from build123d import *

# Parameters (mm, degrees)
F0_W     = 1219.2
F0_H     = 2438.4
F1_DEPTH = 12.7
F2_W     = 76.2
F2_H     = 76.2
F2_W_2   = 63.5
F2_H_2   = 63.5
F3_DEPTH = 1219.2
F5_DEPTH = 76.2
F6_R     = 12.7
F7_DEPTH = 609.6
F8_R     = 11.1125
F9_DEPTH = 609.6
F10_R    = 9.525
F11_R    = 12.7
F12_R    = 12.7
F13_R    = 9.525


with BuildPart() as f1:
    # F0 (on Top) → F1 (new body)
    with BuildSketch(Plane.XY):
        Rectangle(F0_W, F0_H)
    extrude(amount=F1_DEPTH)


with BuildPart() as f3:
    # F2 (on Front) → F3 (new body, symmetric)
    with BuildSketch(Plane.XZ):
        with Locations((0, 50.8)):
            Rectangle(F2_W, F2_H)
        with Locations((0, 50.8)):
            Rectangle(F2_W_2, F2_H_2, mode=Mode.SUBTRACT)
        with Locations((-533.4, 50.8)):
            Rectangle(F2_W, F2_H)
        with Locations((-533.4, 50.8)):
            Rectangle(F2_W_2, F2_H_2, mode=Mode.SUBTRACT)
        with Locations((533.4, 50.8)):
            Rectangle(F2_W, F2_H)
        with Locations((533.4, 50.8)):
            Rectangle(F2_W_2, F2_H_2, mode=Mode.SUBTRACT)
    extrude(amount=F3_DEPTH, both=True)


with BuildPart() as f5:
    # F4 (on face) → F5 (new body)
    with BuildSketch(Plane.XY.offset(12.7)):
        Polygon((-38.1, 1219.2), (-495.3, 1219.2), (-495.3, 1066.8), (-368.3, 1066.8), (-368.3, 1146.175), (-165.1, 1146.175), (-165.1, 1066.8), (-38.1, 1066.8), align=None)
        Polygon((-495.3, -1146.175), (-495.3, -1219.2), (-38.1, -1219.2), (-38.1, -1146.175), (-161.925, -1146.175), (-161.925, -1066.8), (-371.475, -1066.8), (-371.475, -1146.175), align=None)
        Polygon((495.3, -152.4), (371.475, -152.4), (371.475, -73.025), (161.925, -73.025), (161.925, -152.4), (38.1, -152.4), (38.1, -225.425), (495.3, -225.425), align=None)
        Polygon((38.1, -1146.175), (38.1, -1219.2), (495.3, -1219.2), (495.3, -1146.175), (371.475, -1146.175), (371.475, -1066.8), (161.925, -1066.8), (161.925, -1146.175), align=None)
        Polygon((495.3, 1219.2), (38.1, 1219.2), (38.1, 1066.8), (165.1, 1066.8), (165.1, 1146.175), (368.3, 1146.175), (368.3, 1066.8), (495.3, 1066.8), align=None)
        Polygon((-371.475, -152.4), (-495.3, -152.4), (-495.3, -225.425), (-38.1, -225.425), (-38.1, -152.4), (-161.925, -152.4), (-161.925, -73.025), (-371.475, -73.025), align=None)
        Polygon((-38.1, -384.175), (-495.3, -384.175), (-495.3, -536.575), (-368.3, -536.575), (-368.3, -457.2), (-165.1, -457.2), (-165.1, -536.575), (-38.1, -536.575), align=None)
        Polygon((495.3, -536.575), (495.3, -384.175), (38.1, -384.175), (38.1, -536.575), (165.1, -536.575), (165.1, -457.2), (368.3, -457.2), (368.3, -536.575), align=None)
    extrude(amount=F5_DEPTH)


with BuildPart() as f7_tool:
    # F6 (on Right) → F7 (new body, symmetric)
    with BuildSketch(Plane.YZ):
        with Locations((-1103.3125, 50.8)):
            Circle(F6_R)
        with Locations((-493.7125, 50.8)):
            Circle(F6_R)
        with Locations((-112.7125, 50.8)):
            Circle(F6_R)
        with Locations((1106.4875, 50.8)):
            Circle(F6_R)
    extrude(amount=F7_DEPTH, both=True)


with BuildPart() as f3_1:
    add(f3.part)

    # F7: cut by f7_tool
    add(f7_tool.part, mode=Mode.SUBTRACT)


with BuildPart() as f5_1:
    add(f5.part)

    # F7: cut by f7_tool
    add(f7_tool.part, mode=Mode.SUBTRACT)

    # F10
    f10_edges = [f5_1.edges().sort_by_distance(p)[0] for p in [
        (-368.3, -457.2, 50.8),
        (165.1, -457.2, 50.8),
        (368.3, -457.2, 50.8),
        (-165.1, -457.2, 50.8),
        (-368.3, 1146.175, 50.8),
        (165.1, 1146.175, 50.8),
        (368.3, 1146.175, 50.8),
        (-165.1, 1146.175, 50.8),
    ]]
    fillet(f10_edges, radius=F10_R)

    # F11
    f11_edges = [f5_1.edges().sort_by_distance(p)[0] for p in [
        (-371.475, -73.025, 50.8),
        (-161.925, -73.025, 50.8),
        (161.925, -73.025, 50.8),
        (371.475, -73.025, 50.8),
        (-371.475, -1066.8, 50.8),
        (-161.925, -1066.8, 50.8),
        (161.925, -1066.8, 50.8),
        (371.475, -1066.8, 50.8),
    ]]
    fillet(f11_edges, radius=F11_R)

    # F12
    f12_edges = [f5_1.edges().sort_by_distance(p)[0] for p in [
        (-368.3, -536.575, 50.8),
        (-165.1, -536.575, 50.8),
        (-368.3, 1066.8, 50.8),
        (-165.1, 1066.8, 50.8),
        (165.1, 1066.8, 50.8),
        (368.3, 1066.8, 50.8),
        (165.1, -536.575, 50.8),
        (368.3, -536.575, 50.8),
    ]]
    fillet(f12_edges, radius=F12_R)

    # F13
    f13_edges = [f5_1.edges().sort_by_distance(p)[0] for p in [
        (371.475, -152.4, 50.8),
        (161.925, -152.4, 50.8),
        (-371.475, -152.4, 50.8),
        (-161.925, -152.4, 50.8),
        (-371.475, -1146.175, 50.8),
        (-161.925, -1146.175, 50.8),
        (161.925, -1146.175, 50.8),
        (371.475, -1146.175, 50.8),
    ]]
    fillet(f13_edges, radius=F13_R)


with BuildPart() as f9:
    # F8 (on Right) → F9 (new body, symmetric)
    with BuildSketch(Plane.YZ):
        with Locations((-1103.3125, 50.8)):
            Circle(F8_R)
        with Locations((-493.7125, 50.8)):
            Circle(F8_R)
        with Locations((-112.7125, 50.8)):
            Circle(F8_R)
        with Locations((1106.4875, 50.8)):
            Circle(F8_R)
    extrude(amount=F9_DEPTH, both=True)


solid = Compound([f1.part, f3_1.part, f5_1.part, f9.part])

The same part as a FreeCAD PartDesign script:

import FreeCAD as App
import Part
import Sketcher

V = App.Vector
Q = App.Units.Quantity


def edges_at(feature, points):
    """Names of the edges that pass closest to the given points."""
    edges = feature.Shape.Edges
    near = lambda p: min(range(len(edges)), key=lambda i: edges[i].distToShape(Part.Vertex(*p))[0])
    return sorted({f"Edge{near(p) + 1}" for p in points})

doc = App.newDocument("Part")
body = doc.addObject("PartDesign::Body", "Body")

# Sketch on XY plane
sketch1 = body.newObject("Sketcher::SketchObject", "Sketch")
sketch1.AttachmentSupport = (doc.getObject("XY_Plane"), [""])
sketch1.MapMode = "FlatFace"
sketch1.addGeometry([
    Part.LineSegment(V(-609.6, 1219.2, 0), V(-609.6, -1219.2, 0)),
    Part.LineSegment(V(-609.6, -1219.2, 0), V(609.6, -1219.2, 0)),
    Part.LineSegment(V(609.6, -1219.2, 0), V(609.6, 1219.2, 0)),
    Part.LineSegment(V(609.6, 1219.2, 0), V(-609.6, 1219.2, 0)),
], False)
sketch1.addConstraint([
    Sketcher.Constraint("Coincident", 0, 2, 1, 1),
    Sketcher.Constraint("Coincident", 1, 2, 2, 1),
    Sketcher.Constraint("Coincident", 2, 2, 3, 1),
    Sketcher.Constraint("Coincident", 3, 2, 0, 1),
    Sketcher.Constraint("Vertical", 0),
    Sketcher.Constraint("Horizontal", 1),
    Sketcher.Constraint("Vertical", 2),
    Sketcher.Constraint("Horizontal", 3),
    Sketcher.Constraint("Symmetric", 0, 2, 2, 2, -1, 1),
    Sketcher.Constraint("DistanceX", 1, 1, 1, 2, Q("48 in")),
    Sketcher.Constraint("DistanceY", 0, 2, 0, 1, Q("96 in")),
])
pad1 = body.newObject("PartDesign::Pad", "Pad")
pad1.Profile = sketch1
pad1.Length = Q("0.5 in")
body2 = doc.addObject("PartDesign::Body", "Body001")
body2.AllowCompound = True

# Sketch on XZ plane
sketch2 = body2.newObject("Sketcher::SketchObject", "Sketch001")
sketch2.AttachmentSupport = (doc.getObject("XZ_Plane001"), [""])
sketch2.MapMode = "FlatFace"
sketch2.addGeometry([
    Part.LineSegment(V(-38.1, 88.9, 0), V(-38.1, 12.7, 0)),  # 0
    Part.LineSegment(V(-38.1, 12.7, 0), V(38.1, 12.7, 0)),  # 1
    Part.LineSegment(V(38.1, 12.7, 0), V(38.1, 88.9, 0)),  # 2
    Part.LineSegment(V(38.1, 88.9, 0), V(-38.1, 88.9, 0)),  # 3
    Part.LineSegment(V(31.75, 19.05, 0), V(-31.75, 19.05, 0)),  # 4
    Part.LineSegment(V(-31.75, 19.05, 0), V(-31.75, 82.55, 0)),  # 5
    Part.LineSegment(V(-31.75, 82.55, 0), V(31.75, 82.55, 0)),  # 6
    Part.LineSegment(V(31.75, 82.55, 0), V(31.75, 19.05, 0)),  # 7
    Part.LineSegment(V(-571.5, 88.9, 0), V(-571.5, 12.7, 0)),  # 8
    Part.LineSegment(V(-571.5, 12.7, 0), V(-495.3, 12.7, 0)),  # 9
    Part.LineSegment(V(-495.3, 12.7, 0), V(-495.3, 88.9, 0)),  # 10
    Part.LineSegment(V(-495.3, 88.9, 0), V(-571.5, 88.9, 0)),  # 11
    Part.LineSegment(V(-501.65, 19.05, 0), V(-565.15, 19.05, 0)),  # 12
    Part.LineSegment(V(-565.15, 19.05, 0), V(-565.15, 82.55, 0)),  # 13
    Part.LineSegment(V(-565.15, 82.55, 0), V(-501.65, 82.55, 0)),  # 14
    Part.LineSegment(V(-501.65, 82.55, 0), V(-501.65, 19.05, 0)),  # 15
    Part.LineSegment(V(495.3, 88.9, 0), V(495.3, 12.7, 0)),  # 16
    Part.LineSegment(V(495.3, 12.7, 0), V(571.5, 12.7, 0)),  # 17
    Part.LineSegment(V(571.5, 12.7, 0), V(571.5, 88.9, 0)),  # 18
    Part.LineSegment(V(571.5, 88.9, 0), V(495.3, 88.9, 0)),  # 19
    Part.LineSegment(V(565.15, 19.05, 0), V(501.65, 19.05, 0)),  # 20
    Part.LineSegment(V(501.65, 19.05, 0), V(501.65, 82.55, 0)),  # 21
    Part.LineSegment(V(501.65, 82.55, 0), V(565.15, 82.55, 0)),  # 22
    Part.LineSegment(V(565.15, 82.55, 0), V(565.15, 19.05, 0)),  # 23
], False)
sketch2.addConstraint([
    Sketcher.Constraint("Coincident", 0, 2, 1, 1),
    Sketcher.Constraint("Coincident", 1, 2, 2, 1),
    Sketcher.Constraint("Coincident", 2, 2, 3, 1),
    Sketcher.Constraint("Coincident", 3, 2, 0, 1),
    Sketcher.Constraint("Coincident", 4, 2, 5, 1),
    Sketcher.Constraint("Coincident", 5, 2, 6, 1),
    Sketcher.Constraint("Coincident", 6, 2, 7, 1),
    Sketcher.Constraint("Coincident", 7, 2, 4, 1),
    Sketcher.Constraint("Coincident", 8, 2, 9, 1),
    Sketcher.Constraint("Coincident", 9, 2, 10, 1),
    Sketcher.Constraint("Coincident", 10, 2, 11, 1),
    Sketcher.Constraint("Coincident", 11, 2, 8, 1),
    Sketcher.Constraint("Coincident", 12, 2, 13, 1),
    Sketcher.Constraint("Coincident", 13, 2, 14, 1),
    Sketcher.Constraint("Coincident", 14, 2, 15, 1),
    Sketcher.Constraint("Coincident", 15, 2, 12, 1),
    Sketcher.Constraint("Coincident", 16, 2, 17, 1),
    Sketcher.Constraint("Coincident", 17, 2, 18, 1),
    Sketcher.Constraint("Coincident", 18, 2, 19, 1),
    Sketcher.Constraint("Coincident", 19, 2, 16, 1),
    Sketcher.Constraint("Coincident", 20, 2, 21, 1),
    Sketcher.Constraint("Coincident", 21, 2, 22, 1),
    Sketcher.Constraint("Coincident", 22, 2, 23, 1),
    Sketcher.Constraint("Coincident", 23, 2, 20, 1),
    Sketcher.Constraint("Vertical", 0),
    Sketcher.Constraint("Horizontal", 1),
    Sketcher.Constraint("Vertical", 2),
    Sketcher.Constraint("Horizontal", 3),
    Sketcher.Constraint("Horizontal", 4),
    Sketcher.Constraint("Vertical", 5),
    Sketcher.Constraint("Horizontal", 6),
    Sketcher.Constraint("Vertical", 7),
    Sketcher.Constraint("Vertical", 8),
    Sketcher.Constraint("Horizontal", 9),
    Sketcher.Constraint("Vertical", 10),
    Sketcher.Constraint("Horizontal", 11),
    Sketcher.Constraint("Horizontal", 12),
    Sketcher.Constraint("Vertical", 13),
    Sketcher.Constraint("Horizontal", 14),
    Sketcher.Constraint("Vertical", 15),
    Sketcher.Constraint("Vertical", 16),
    Sketcher.Constraint("Horizontal", 17),
    Sketcher.Constraint("Vertical", 18),
    Sketcher.Constraint("Horizontal", 19),
    Sketcher.Constraint("Horizontal", 20),
    Sketcher.Constraint("Vertical", 21),
    Sketcher.Constraint("Horizontal", 22),
    Sketcher.Constraint("Vertical", 23),
    Sketcher.Constraint("Symmetric", 9, 2, 16, 2, -2),
    Sketcher.Constraint("Symmetric", 11, 2, 18, 2, -2),
    Sketcher.Constraint("Symmetric", 15, 2, 20, 2, -2),
    Sketcher.Constraint("Symmetric", 13, 2, 22, 2, -2),
    Sketcher.Constraint("Horizontal", 1, 2, 8, 2),
    Sketcher.Constraint("Horizontal", 3, 2, 10, 2),
    Sketcher.Constraint("Horizontal", 7, 2, 12, 2),
    Sketcher.Constraint("Horizontal", 6, 2, 13, 2),
    Sketcher.Constraint("Equal", 3, 9),
    Sketcher.Constraint("Equal", 6, 12),
    Sketcher.Constraint("Equal", 19, 0),
    Sketcher.Constraint("Equal", 22, 5),
    Sketcher.Constraint("DistanceX", 1, 1, 1, 2, Q("3 in")),
    Sketcher.Constraint("DistanceX", 4, 2, 4, 1, Q("2.5 in")),
    Sketcher.Constraint("DistanceX", 8, 2, 0, 2, Q("21 in")),
    Sketcher.Constraint("DistanceX", 1, 2, 16, 2, Q("18 in")),
    Sketcher.Constraint("DistanceY", -1, 1, 0, 2, Q("0.5 in")),
    Sketcher.Constraint("DistanceX", 4, 2, -1, 1, Q("1.25 in")),
    Sketcher.Constraint("DistanceY", -1, 1, 4, 2, Q("0.75 in")),
    Sketcher.Constraint("DistanceX", 12, 2, -1, 1, Q("22.25 in")),
])
pad2 = body2.newObject("PartDesign::Pad", "Pad001")
pad2.Profile = sketch2
pad2.Length = Q("96 in")
pad2.Midplane = True
body3 = doc.addObject("PartDesign::Body", "Body002")
body3.AllowCompound = True

# Sketch on XY plane
sketch3 = body3.newObject("Sketcher::SketchObject", "Sketch002")
sketch3.AttachmentSupport = (doc.getObject("XY_Plane002"), [""])
sketch3.MapMode = "FlatFace"
sketch3.AttachmentOffset = App.Placement(V(0, 0, 0.5 * 25.4), App.Rotation())
sketch3.addGeometry([
    Part.LineSegment(V(-38.1, 1219.2, 0), V(-495.3, 1219.2, 0)),  # 0
    Part.LineSegment(V(-495.3, 1219.2, 0), V(-495.3, 1066.8, 0)),  # 1
    Part.LineSegment(V(-495.3, 1066.8, 0), V(-368.3, 1066.8, 0)),  # 2
    Part.LineSegment(V(-368.3, 1066.8, 0), V(-368.3, 1146.175, 0)),  # 3
    Part.LineSegment(V(-368.3, 1146.175, 0), V(-165.1, 1146.175, 0)),  # 4
    Part.LineSegment(V(-165.1, 1146.175, 0), V(-165.1, 1066.8, 0)),  # 5
    Part.LineSegment(V(-165.1, 1066.8, 0), V(-38.1, 1066.8, 0)),  # 6
    Part.LineSegment(V(-38.1, 1066.8, 0), V(-38.1, 1219.2, 0)),  # 7
    Part.LineSegment(V(-495.3, -1146.175, 0), V(-495.3, -1219.2, 0)),  # 8
    Part.LineSegment(V(-495.3, -1219.2, 0), V(-38.1, -1219.2, 0)),  # 9
    Part.LineSegment(V(-38.1, -1219.2, 0), V(-38.1, -1146.175, 0)),  # 10
    Part.LineSegment(V(-38.1, -1146.175, 0), V(-161.925, -1146.175, 0)),  # 11
    Part.LineSegment(V(-161.925, -1146.175, 0), V(-161.925, -1066.8, 0)),  # 12
    Part.LineSegment(V(-161.925, -1066.8, 0), V(-371.475, -1066.8, 0)),  # 13
    Part.LineSegment(V(-371.475, -1066.8, 0), V(-371.475, -1146.175, 0)),  # 14
    Part.LineSegment(V(-371.475, -1146.175, 0), V(-495.3, -1146.175, 0)),  # 15
    Part.LineSegment(V(495.3, -152.4, 0), V(371.475, -152.4, 0)),  # 16
    Part.LineSegment(V(371.475, -152.4, 0), V(371.475, -73.025, 0)),  # 17
    Part.LineSegment(V(371.475, -73.025, 0), V(161.925, -73.025, 0)),  # 18
    Part.LineSegment(V(161.925, -73.025, 0), V(161.925, -152.4, 0)),  # 19
    Part.LineSegment(V(161.925, -152.4, 0), V(38.1, -152.4, 0)),  # 20
    Part.LineSegment(V(38.1, -152.4, 0), V(38.1, -225.425, 0)),  # 21
    Part.LineSegment(V(38.1, -225.425, 0), V(495.3, -225.425, 0)),  # 22
    Part.LineSegment(V(495.3, -225.425, 0), V(495.3, -152.4, 0)),  # 23
    Part.LineSegment(V(38.1, -1146.175, 0), V(38.1, -1219.2, 0)),  # 24
    Part.LineSegment(V(38.1, -1219.2, 0), V(495.3, -1219.2, 0)),  # 25
    Part.LineSegment(V(495.3, -1219.2, 0), V(495.3, -1146.175, 0)),  # 26
    Part.LineSegment(V(495.3, -1146.175, 0), V(371.475, -1146.175, 0)),  # 27
    Part.LineSegment(V(371.475, -1146.175, 0), V(371.475, -1066.8, 0)),  # 28
    Part.LineSegment(V(371.475, -1066.8, 0), V(161.925, -1066.8, 0)),  # 29
    Part.LineSegment(V(161.925, -1066.8, 0), V(161.925, -1146.175, 0)),  # 30
    Part.LineSegment(V(161.925, -1146.175, 0), V(38.1, -1146.175, 0)),  # 31
    Part.LineSegment(V(495.3, 1219.2, 0), V(38.1, 1219.2, 0)),  # 32
    Part.LineSegment(V(38.1, 1219.2, 0), V(38.1, 1066.8, 0)),  # 33
    Part.LineSegment(V(38.1, 1066.8, 0), V(165.1, 1066.8, 0)),  # 34
    Part.LineSegment(V(165.1, 1066.8, 0), V(165.1, 1146.175, 0)),  # 35
    Part.LineSegment(V(165.1, 1146.175, 0), V(368.3, 1146.175, 0)),  # 36
    Part.LineSegment(V(368.3, 1146.175, 0), V(368.3, 1066.8, 0)),  # 37
    Part.LineSegment(V(368.3, 1066.8, 0), V(495.3, 1066.8, 0)),  # 38
    Part.LineSegment(V(495.3, 1066.8, 0), V(495.3, 1219.2, 0)),  # 39
    Part.LineSegment(V(-371.475, -152.4, 0), V(-495.3, -152.4, 0)),  # 40
    Part.LineSegment(V(-495.3, -152.4, 0), V(-495.3, -225.425, 0)),  # 41
    Part.LineSegment(V(-495.3, -225.425, 0), V(-38.1, -225.425, 0)),  # 42
    Part.LineSegment(V(-38.1, -225.425, 0), V(-38.1, -152.4, 0)),  # 43
    Part.LineSegment(V(-38.1, -152.4, 0), V(-161.925, -152.4, 0)),  # 44
    Part.LineSegment(V(-161.925, -152.4, 0), V(-161.925, -73.025, 0)),  # 45
    Part.LineSegment(V(-161.925, -73.025, 0), V(-371.475, -73.025, 0)),  # 46
    Part.LineSegment(V(-371.475, -73.025, 0), V(-371.475, -152.4, 0)),  # 47
    Part.LineSegment(V(-38.1, -384.175, 0), V(-495.3, -384.175, 0)),  # 48
    Part.LineSegment(V(-495.3, -384.175, 0), V(-495.3, -536.575, 0)),  # 49
    Part.LineSegment(V(-495.3, -536.575, 0), V(-368.3, -536.575, 0)),  # 50
    Part.LineSegment(V(-368.3, -536.575, 0), V(-368.3, -457.2, 0)),  # 51
    Part.LineSegment(V(-368.3, -457.2, 0), V(-165.1, -457.2, 0)),  # 52
    Part.LineSegment(V(-165.1, -457.2, 0), V(-165.1, -536.575, 0)),  # 53
    Part.LineSegment(V(-165.1, -536.575, 0), V(-38.1, -536.575, 0)),  # 54
    Part.LineSegment(V(-38.1, -536.575, 0), V(-38.1, -384.175, 0)),  # 55
    Part.LineSegment(V(495.3, -536.575, 0), V(495.3, -384.175, 0)),  # 56
    Part.LineSegment(V(495.3, -384.175, 0), V(38.1, -384.175, 0)),  # 57
    Part.LineSegment(V(38.1, -384.175, 0), V(38.1, -536.575, 0)),  # 58
    Part.LineSegment(V(38.1, -536.575, 0), V(165.1, -536.575, 0)),  # 59
    Part.LineSegment(V(165.1, -536.575, 0), V(165.1, -457.2, 0)),  # 60
    Part.LineSegment(V(165.1, -457.2, 0), V(368.3, -457.2, 0)),  # 61
    Part.LineSegment(V(368.3, -457.2, 0), V(368.3, -536.575, 0)),  # 62
    Part.LineSegment(V(368.3, -536.575, 0), V(495.3, -536.575, 0)),  # 63
], False)
sketch3.addConstraint([
    Sketcher.Constraint("Coincident", 0, 2, 1, 1),
    Sketcher.Constraint("Coincident", 1, 2, 2, 1),
    Sketcher.Constraint("Coincident", 2, 2, 3, 1),
    Sketcher.Constraint("Coincident", 3, 2, 4, 1),
    Sketcher.Constraint("Coincident", 4, 2, 5, 1),
    Sketcher.Constraint("Coincident", 5, 2, 6, 1),
    Sketcher.Constraint("Coincident", 6, 2, 7, 1),
    Sketcher.Constraint("Coincident", 7, 2, 0, 1),
    Sketcher.Constraint("Coincident", 8, 2, 9, 1),
    Sketcher.Constraint("Coincident", 9, 2, 10, 1),
    Sketcher.Constraint("Coincident", 10, 2, 11, 1),
    Sketcher.Constraint("Coincident", 11, 2, 12, 1),
    Sketcher.Constraint("Coincident", 12, 2, 13, 1),
    Sketcher.Constraint("Coincident", 13, 2, 14, 1),
    Sketcher.Constraint("Coincident", 14, 2, 15, 1),
    Sketcher.Constraint("Coincident", 15, 2, 8, 1),
    Sketcher.Constraint("Coincident", 16, 2, 17, 1),
    Sketcher.Constraint("Coincident", 17, 2, 18, 1),
    Sketcher.Constraint("Coincident", 18, 2, 19, 1),
    Sketcher.Constraint("Coincident", 19, 2, 20, 1),
    Sketcher.Constraint("Coincident", 20, 2, 21, 1),
    Sketcher.Constraint("Coincident", 21, 2, 22, 1),
    Sketcher.Constraint("Coincident", 22, 2, 23, 1),
    Sketcher.Constraint("Coincident", 23, 2, 16, 1),
    Sketcher.Constraint("Coincident", 24, 2, 25, 1),
    Sketcher.Constraint("Coincident", 25, 2, 26, 1),
    Sketcher.Constraint("Coincident", 26, 2, 27, 1),
    Sketcher.Constraint("Coincident", 27, 2, 28, 1),
    Sketcher.Constraint("Coincident", 28, 2, 29, 1),
    Sketcher.Constraint("Coincident", 29, 2, 30, 1),
    Sketcher.Constraint("Coincident", 30, 2, 31, 1),
    Sketcher.Constraint("Coincident", 31, 2, 24, 1),
    Sketcher.Constraint("Coincident", 32, 2, 33, 1),
    Sketcher.Constraint("Coincident", 33, 2, 34, 1),
    Sketcher.Constraint("Coincident", 34, 2, 35, 1),
    Sketcher.Constraint("Coincident", 35, 2, 36, 1),
    Sketcher.Constraint("Coincident", 36, 2, 37, 1),
    Sketcher.Constraint("Coincident", 37, 2, 38, 1),
    Sketcher.Constraint("Coincident", 38, 2, 39, 1),
    Sketcher.Constraint("Coincident", 39, 2, 32, 1),
    Sketcher.Constraint("Coincident", 40, 2, 41, 1),
    Sketcher.Constraint("Coincident", 41, 2, 42, 1),
    Sketcher.Constraint("Coincident", 42, 2, 43, 1),
    Sketcher.Constraint("Coincident", 43, 2, 44, 1),
    Sketcher.Constraint("Coincident", 44, 2, 45, 1),
    Sketcher.Constraint("Coincident", 45, 2, 46, 1),
    Sketcher.Constraint("Coincident", 46, 2, 47, 1),
    Sketcher.Constraint("Coincident", 47, 2, 40, 1),
    Sketcher.Constraint("Coincident", 48, 2, 49, 1),
    Sketcher.Constraint("Coincident", 49, 2, 50, 1),
    Sketcher.Constraint("Coincident", 50, 2, 51, 1),
    Sketcher.Constraint("Coincident", 51, 2, 52, 1),
    Sketcher.Constraint("Coincident", 52, 2, 53, 1),
    Sketcher.Constraint("Coincident", 53, 2, 54, 1),
    Sketcher.Constraint("Coincident", 54, 2, 55, 1),
    Sketcher.Constraint("Coincident", 55, 2, 48, 1),
    Sketcher.Constraint("Coincident", 56, 2, 57, 1),
    Sketcher.Constraint("Coincident", 57, 2, 58, 1),
    Sketcher.Constraint("Coincident", 58, 2, 59, 1),
    Sketcher.Constraint("Coincident", 59, 2, 60, 1),
    Sketcher.Constraint("Coincident", 60, 2, 61, 1),
    Sketcher.Constraint("Coincident", 61, 2, 62, 1),
    Sketcher.Constraint("Coincident", 62, 2, 63, 1),
    Sketcher.Constraint("Coincident", 63, 2, 56, 1),
    Sketcher.Constraint("Horizontal", 0),
    Sketcher.Constraint("Vertical", 1),
    Sketcher.Constraint("Horizontal", 2),
    Sketcher.Constraint("Vertical", 3),
    Sketcher.Constraint("Horizontal", 4),
    Sketcher.Constraint("Vertical", 5),
    Sketcher.Constraint("Horizontal", 6),
    Sketcher.Constraint("Vertical", 7),
    Sketcher.Constraint("Vertical", 8),
    Sketcher.Constraint("Horizontal", 9),
    Sketcher.Constraint("Vertical", 10),
    Sketcher.Constraint("Horizontal", 11),
    Sketcher.Constraint("Vertical", 12),
    Sketcher.Constraint("Horizontal", 13),
    Sketcher.Constraint("Vertical", 14),
    Sketcher.Constraint("Horizontal", 15),
    Sketcher.Constraint("Horizontal", 16),
    Sketcher.Constraint("Vertical", 17),
    Sketcher.Constraint("Horizontal", 18),
    Sketcher.Constraint("Vertical", 19),
    Sketcher.Constraint("Horizontal", 20),
    Sketcher.Constraint("Vertical", 21),
    Sketcher.Constraint("Horizontal", 22),
    Sketcher.Constraint("Vertical", 23),
    Sketcher.Constraint("Vertical", 24),
    Sketcher.Constraint("Horizontal", 25),
    Sketcher.Constraint("Vertical", 26),
    Sketcher.Constraint("Horizontal", 27),
    Sketcher.Constraint("Vertical", 28),
    Sketcher.Constraint("Horizontal", 29),
    Sketcher.Constraint("Vertical", 30),
    Sketcher.Constraint("Horizontal", 31),
    Sketcher.Constraint("Horizontal", 32),
    Sketcher.Constraint("Vertical", 33),
    Sketcher.Constraint("Horizontal", 34),
    Sketcher.Constraint("Vertical", 35),
    Sketcher.Constraint("Horizontal", 36),
    Sketcher.Constraint("Vertical", 37),
    Sketcher.Constraint("Horizontal", 38),
    Sketcher.Constraint("Vertical", 39),
    Sketcher.Constraint("Horizontal", 40),
    Sketcher.Constraint("Vertical", 41),
    Sketcher.Constraint("Horizontal", 42),
    Sketcher.Constraint("Vertical", 43),
    Sketcher.Constraint("Horizontal", 44),
    Sketcher.Constraint("Vertical", 45),
    Sketcher.Constraint("Horizontal", 46),
    Sketcher.Constraint("Vertical", 47),
    Sketcher.Constraint("Horizontal", 48),
    Sketcher.Constraint("Vertical", 49),
    Sketcher.Constraint("Horizontal", 50),
    Sketcher.Constraint("Vertical", 51),
    Sketcher.Constraint("Horizontal", 52),
    Sketcher.Constraint("Vertical", 53),
    Sketcher.Constraint("Horizontal", 54),
    Sketcher.Constraint("Vertical", 55),
    Sketcher.Constraint("Vertical", 56),
    Sketcher.Constraint("Horizontal", 57),
    Sketcher.Constraint("Vertical", 58),
    Sketcher.Constraint("Horizontal", 59),
    Sketcher.Constraint("Vertical", 60),
    Sketcher.Constraint("Horizontal", 61),
    Sketcher.Constraint("Vertical", 62),
    Sketcher.Constraint("Horizontal", 63),
    Sketcher.Constraint("Symmetric", 7, 2, 24, 2, -1, 1),
    Sketcher.Constraint("Symmetric", 9, 2, 32, 2, -1, 1),
    Sketcher.Constraint("Symmetric", 9, 2, 24, 2, -2),
    Sketcher.Constraint("Symmetric", 15, 2, 26, 2, -2),
    Sketcher.Constraint("Symmetric", 13, 2, 28, 2, -2),
    Sketcher.Constraint("Symmetric", 11, 2, 30, 2, -2),
    Sketcher.Constraint("Symmetric", 5, 2, 34, 2, -2),
    Sketcher.Constraint("Symmetric", 3, 2, 36, 2, -2),
    Sketcher.Constraint("Symmetric", 1, 2, 38, 2, -2),
    Sketcher.Constraint("Symmetric", 23, 2, 40, 2, -2),
    Sketcher.Constraint("Symmetric", 21, 2, 42, 2, -2),
    Sketcher.Constraint("Symmetric", 19, 2, 44, 2, -2),
    Sketcher.Constraint("Symmetric", 17, 2, 46, 2, -2),
    Sketcher.Constraint("Symmetric", 48, 2, 56, 2, -2),
    Sketcher.Constraint("Symmetric", 54, 2, 58, 2, -2),
    Sketcher.Constraint("Symmetric", 52, 2, 60, 2, -2),
    Sketcher.Constraint("Symmetric", 50, 2, 62, 2, -2),
    Sketcher.Constraint("Horizontal", 2, 2, 5, 2),
    Sketcher.Constraint("Horizontal", 11, 2, 14, 2),
    Sketcher.Constraint("Horizontal", 16, 2, 19, 2),
    Sketcher.Constraint("Horizontal", 50, 2, 53, 2),
    Sketcher.Constraint("Vertical", 1, 2, 8, 2),
    Sketcher.Constraint("Vertical", 21, 2, 24, 2),
    Sketcher.Constraint("Vertical", 23, 2, 25, 2),
    Sketcher.Constraint("Vertical", 17, 2, 27, 2),
    Sketcher.Constraint("Vertical", 19, 2, 29, 2),
    Sketcher.Constraint("Vertical", 41, 2, 48, 2),
    Sketcher.Constraint("Vertical", 3, 2, 50, 2),
    Sketcher.Constraint("Vertical", 5, 2, 52, 2),
    Sketcher.Constraint("Vertical", 43, 2, 54, 2),
    Sketcher.Constraint("Equal", 2, 6),
    Sketcher.Constraint("Equal", 11, 15),
    Sketcher.Constraint("Equal", 5, 12),
    Sketcher.Constraint("Equal", 14, 17),
    Sketcher.Constraint("Equal", 10, 21),
    Sketcher.Constraint("Equal", 39, 49),
    Sketcher.Constraint("Equal", 47, 51),
    Sketcher.Constraint("DistanceX", 0, 2, 0, 1, Q("18 in")),
    Sketcher.Constraint("DistanceX", 2, 1, 2, 2, Q("5 in")),
    Sketcher.Constraint("DistanceY", 1, 2, 1, 1, Q("6 in")),
    Sketcher.Constraint("DistanceY", -1, 1, 0, 2, Q("48 in")),
    Sketcher.Constraint("DistanceY", 12, 2, -1, 1, Q("42 in")),
    Sketcher.Constraint("DistanceY", 16, 2, -1, 1, Q("6 in")),
    Sketcher.Constraint("DistanceY", 51, 2, -1, 1, Q("18 in")),
    Sketcher.Constraint("DistanceX", 13, 2, 13, 1, Q("8.25 in")),
    Sketcher.Constraint("DistanceX", 0, 2, -1, 1, Q("19.5 in")),
    Sketcher.Constraint("DistanceY", 3, 1, 3, 2, Q("3.125 in")),
])
pad3 = body3.newObject("PartDesign::Pad", "Pad002")
pad3.Profile = sketch3
pad3.Length = Q("3 in")
body4 = doc.addObject("PartDesign::Body", "Body003")
body4.AllowCompound = True

# Sketch on YZ plane
sketch4 = body4.newObject("Sketcher::SketchObject", "Sketch003")
sketch4.AttachmentSupport = (doc.getObject("YZ_Plane003"), [""])
sketch4.MapMode = "FlatFace"
sketch4.addGeometry([
    Part.Circle(V(-1103.3125, 50.8, 0), V(0, 0, 1), 12.7),
    Part.Circle(V(-493.7125, 50.8, 0), V(0, 0, 1), 12.7),
    Part.Circle(V(-112.7125, 50.8, 0), V(0, 0, 1), 12.7),
    Part.Circle(V(1106.4875, 50.8, 0), V(0, 0, 1), 12.7),
], False)
sketch4.addConstraint([
    Sketcher.Constraint("Equal", 0, 1),
    Sketcher.Constraint("Equal", 1, 2),
    Sketcher.Constraint("Equal", 2, 3),
    Sketcher.Constraint("Horizontal", 0, 3, 1, 3),
    Sketcher.Constraint("Horizontal", 1, 3, 2, 3),
    Sketcher.Constraint("Horizontal", 2, 3, 3, 3),
    Sketcher.Constraint("Diameter", 0, Q("1 in")),
    Sketcher.Constraint("DistanceY", -1, 1, 0, 3, Q("2 in")),
    Sketcher.Constraint("DistanceX", 0, 3, 1, 3, Q("24 in")),
    Sketcher.Constraint("DistanceX", 1, 3, 2, 3, Q("15 in")),
    Sketcher.Constraint("DistanceX", 2, 3, 3, 3, Q("48 in")),
    Sketcher.Constraint("DistanceX", 0, 3, -1, 1, Q("43.4375 in")),
])
pad4 = body4.newObject("PartDesign::Pad", "Pad003")
pad4.Profile = sketch4
pad4.Length = Q("48 in")
pad4.Midplane = True
body2.AllowCompound = True
doc.recompute()

body5 = doc.addObject("PartDesign::Body", "Body004")
body5.BaseFeature = body4
boolean = body2.newObject("PartDesign::Boolean", "Boolean")
boolean.Type = "Cut"
boolean.addObjects([body5])
doc.recompute()
body3.AllowCompound = True
doc.recompute()

boolean2 = body3.newObject("PartDesign::Boolean", "Boolean001")
boolean2.Type = "Cut"
boolean2.addObjects([body4])
doc.recompute()

fillet = body3.newObject("PartDesign::Fillet", "Fillet")
fillet.Base = (boolean2, edges_at(boolean2, [
    (-368.3, -457.2, 50.8),
    (165.1, -457.2, 50.8),
    (368.3, -457.2, 50.8),
    (-165.1, -457.2, 50.8),
    (-368.3, 1146.175, 50.8),
    (165.1, 1146.175, 50.8),
    (368.3, 1146.175, 50.8),
    (-165.1, 1146.175, 50.8),
]))
fillet.Radius = Q("0.375 in")
doc.recompute()

fillet2 = body3.newObject("PartDesign::Fillet", "Fillet001")
fillet2.Base = (fillet, edges_at(fillet, [
    (-371.475, -73.025, 50.8),
    (-161.925, -73.025, 50.8),
    (161.925, -73.025, 50.8),
    (371.475, -73.025, 50.8),
    (-371.475, -1066.8, 50.8),
    (-161.925, -1066.8, 50.8),
    (161.925, -1066.8, 50.8),
    (371.475, -1066.8, 50.8),
]))
fillet2.Radius = Q("0.5 in")
doc.recompute()

fillet3 = body3.newObject("PartDesign::Fillet", "Fillet002")
fillet3.Base = (fillet2, edges_at(fillet2, [
    (-368.3, -536.575, 50.8),
    (-165.1, -536.575, 50.8),
    (-368.3, 1066.8, 50.8),
    (-165.1, 1066.8, 50.8),
    (165.1, 1066.8, 50.8),
    (368.3, 1066.8, 50.8),
    (165.1, -536.575, 50.8),
    (368.3, -536.575, 50.8),
]))
fillet3.Radius = Q("0.5 in")
doc.recompute()

fillet4 = body3.newObject("PartDesign::Fillet", "Fillet003")
fillet4.Base = (fillet3, edges_at(fillet3, [
    (371.475, -152.4, 50.8),
    (161.925, -152.4, 50.8),
    (-371.475, -152.4, 50.8),
    (-161.925, -152.4, 50.8),
    (-371.475, -1146.175, 50.8),
    (-161.925, -1146.175, 50.8),
    (161.925, -1146.175, 50.8),
    (371.475, -1146.175, 50.8),
]))
fillet4.Radius = Q("0.375 in")
body6 = doc.addObject("PartDesign::Body", "Body005")
body6.AllowCompound = True

# Sketch on YZ plane
sketch5 = body6.newObject("Sketcher::SketchObject", "Sketch004")
sketch5.AttachmentSupport = (doc.getObject("YZ_Plane005"), [""])
sketch5.MapMode = "FlatFace"
sketch5.addGeometry([
    Part.Circle(V(-1103.3125, 50.8, 0), V(0, 0, 1), 11.1125),
    Part.Circle(V(-493.7125, 50.8, 0), V(0, 0, 1), 11.1125),
    Part.Circle(V(-112.7125, 50.8, 0), V(0, 0, 1), 11.1125),
    Part.Circle(V(1106.4875, 50.8, 0), V(0, 0, 1), 11.1125),
], False)
sketch5.addConstraint([
    Sketcher.Constraint("Equal", 0, 1),
    Sketcher.Constraint("Equal", 1, 2),
    Sketcher.Constraint("Equal", 2, 3),
    Sketcher.Constraint("Horizontal", 0, 3, 1, 3),
    Sketcher.Constraint("Horizontal", 1, 3, 2, 3),
    Sketcher.Constraint("Horizontal", 2, 3, 3, 3),
    Sketcher.Constraint("Diameter", 0, Q("0.875 in")),
    Sketcher.Constraint("DistanceY", -1, 1, 0, 3, Q("2 in")),
    Sketcher.Constraint("DistanceX", 0, 3, 1, 3, Q("24 in")),
    Sketcher.Constraint("DistanceX", 1, 3, 2, 3, Q("15 in")),
    Sketcher.Constraint("DistanceX", 2, 3, 3, 3, Q("48 in")),
    Sketcher.Constraint("DistanceX", 0, 3, -1, 1, Q("43.4375 in")),
])
pad5 = body6.newObject("PartDesign::Pad", "Pad004")
pad5.Profile = sketch5
pad5.Length = Q("48 in")
pad5.Midplane = True

doc.recompute()
